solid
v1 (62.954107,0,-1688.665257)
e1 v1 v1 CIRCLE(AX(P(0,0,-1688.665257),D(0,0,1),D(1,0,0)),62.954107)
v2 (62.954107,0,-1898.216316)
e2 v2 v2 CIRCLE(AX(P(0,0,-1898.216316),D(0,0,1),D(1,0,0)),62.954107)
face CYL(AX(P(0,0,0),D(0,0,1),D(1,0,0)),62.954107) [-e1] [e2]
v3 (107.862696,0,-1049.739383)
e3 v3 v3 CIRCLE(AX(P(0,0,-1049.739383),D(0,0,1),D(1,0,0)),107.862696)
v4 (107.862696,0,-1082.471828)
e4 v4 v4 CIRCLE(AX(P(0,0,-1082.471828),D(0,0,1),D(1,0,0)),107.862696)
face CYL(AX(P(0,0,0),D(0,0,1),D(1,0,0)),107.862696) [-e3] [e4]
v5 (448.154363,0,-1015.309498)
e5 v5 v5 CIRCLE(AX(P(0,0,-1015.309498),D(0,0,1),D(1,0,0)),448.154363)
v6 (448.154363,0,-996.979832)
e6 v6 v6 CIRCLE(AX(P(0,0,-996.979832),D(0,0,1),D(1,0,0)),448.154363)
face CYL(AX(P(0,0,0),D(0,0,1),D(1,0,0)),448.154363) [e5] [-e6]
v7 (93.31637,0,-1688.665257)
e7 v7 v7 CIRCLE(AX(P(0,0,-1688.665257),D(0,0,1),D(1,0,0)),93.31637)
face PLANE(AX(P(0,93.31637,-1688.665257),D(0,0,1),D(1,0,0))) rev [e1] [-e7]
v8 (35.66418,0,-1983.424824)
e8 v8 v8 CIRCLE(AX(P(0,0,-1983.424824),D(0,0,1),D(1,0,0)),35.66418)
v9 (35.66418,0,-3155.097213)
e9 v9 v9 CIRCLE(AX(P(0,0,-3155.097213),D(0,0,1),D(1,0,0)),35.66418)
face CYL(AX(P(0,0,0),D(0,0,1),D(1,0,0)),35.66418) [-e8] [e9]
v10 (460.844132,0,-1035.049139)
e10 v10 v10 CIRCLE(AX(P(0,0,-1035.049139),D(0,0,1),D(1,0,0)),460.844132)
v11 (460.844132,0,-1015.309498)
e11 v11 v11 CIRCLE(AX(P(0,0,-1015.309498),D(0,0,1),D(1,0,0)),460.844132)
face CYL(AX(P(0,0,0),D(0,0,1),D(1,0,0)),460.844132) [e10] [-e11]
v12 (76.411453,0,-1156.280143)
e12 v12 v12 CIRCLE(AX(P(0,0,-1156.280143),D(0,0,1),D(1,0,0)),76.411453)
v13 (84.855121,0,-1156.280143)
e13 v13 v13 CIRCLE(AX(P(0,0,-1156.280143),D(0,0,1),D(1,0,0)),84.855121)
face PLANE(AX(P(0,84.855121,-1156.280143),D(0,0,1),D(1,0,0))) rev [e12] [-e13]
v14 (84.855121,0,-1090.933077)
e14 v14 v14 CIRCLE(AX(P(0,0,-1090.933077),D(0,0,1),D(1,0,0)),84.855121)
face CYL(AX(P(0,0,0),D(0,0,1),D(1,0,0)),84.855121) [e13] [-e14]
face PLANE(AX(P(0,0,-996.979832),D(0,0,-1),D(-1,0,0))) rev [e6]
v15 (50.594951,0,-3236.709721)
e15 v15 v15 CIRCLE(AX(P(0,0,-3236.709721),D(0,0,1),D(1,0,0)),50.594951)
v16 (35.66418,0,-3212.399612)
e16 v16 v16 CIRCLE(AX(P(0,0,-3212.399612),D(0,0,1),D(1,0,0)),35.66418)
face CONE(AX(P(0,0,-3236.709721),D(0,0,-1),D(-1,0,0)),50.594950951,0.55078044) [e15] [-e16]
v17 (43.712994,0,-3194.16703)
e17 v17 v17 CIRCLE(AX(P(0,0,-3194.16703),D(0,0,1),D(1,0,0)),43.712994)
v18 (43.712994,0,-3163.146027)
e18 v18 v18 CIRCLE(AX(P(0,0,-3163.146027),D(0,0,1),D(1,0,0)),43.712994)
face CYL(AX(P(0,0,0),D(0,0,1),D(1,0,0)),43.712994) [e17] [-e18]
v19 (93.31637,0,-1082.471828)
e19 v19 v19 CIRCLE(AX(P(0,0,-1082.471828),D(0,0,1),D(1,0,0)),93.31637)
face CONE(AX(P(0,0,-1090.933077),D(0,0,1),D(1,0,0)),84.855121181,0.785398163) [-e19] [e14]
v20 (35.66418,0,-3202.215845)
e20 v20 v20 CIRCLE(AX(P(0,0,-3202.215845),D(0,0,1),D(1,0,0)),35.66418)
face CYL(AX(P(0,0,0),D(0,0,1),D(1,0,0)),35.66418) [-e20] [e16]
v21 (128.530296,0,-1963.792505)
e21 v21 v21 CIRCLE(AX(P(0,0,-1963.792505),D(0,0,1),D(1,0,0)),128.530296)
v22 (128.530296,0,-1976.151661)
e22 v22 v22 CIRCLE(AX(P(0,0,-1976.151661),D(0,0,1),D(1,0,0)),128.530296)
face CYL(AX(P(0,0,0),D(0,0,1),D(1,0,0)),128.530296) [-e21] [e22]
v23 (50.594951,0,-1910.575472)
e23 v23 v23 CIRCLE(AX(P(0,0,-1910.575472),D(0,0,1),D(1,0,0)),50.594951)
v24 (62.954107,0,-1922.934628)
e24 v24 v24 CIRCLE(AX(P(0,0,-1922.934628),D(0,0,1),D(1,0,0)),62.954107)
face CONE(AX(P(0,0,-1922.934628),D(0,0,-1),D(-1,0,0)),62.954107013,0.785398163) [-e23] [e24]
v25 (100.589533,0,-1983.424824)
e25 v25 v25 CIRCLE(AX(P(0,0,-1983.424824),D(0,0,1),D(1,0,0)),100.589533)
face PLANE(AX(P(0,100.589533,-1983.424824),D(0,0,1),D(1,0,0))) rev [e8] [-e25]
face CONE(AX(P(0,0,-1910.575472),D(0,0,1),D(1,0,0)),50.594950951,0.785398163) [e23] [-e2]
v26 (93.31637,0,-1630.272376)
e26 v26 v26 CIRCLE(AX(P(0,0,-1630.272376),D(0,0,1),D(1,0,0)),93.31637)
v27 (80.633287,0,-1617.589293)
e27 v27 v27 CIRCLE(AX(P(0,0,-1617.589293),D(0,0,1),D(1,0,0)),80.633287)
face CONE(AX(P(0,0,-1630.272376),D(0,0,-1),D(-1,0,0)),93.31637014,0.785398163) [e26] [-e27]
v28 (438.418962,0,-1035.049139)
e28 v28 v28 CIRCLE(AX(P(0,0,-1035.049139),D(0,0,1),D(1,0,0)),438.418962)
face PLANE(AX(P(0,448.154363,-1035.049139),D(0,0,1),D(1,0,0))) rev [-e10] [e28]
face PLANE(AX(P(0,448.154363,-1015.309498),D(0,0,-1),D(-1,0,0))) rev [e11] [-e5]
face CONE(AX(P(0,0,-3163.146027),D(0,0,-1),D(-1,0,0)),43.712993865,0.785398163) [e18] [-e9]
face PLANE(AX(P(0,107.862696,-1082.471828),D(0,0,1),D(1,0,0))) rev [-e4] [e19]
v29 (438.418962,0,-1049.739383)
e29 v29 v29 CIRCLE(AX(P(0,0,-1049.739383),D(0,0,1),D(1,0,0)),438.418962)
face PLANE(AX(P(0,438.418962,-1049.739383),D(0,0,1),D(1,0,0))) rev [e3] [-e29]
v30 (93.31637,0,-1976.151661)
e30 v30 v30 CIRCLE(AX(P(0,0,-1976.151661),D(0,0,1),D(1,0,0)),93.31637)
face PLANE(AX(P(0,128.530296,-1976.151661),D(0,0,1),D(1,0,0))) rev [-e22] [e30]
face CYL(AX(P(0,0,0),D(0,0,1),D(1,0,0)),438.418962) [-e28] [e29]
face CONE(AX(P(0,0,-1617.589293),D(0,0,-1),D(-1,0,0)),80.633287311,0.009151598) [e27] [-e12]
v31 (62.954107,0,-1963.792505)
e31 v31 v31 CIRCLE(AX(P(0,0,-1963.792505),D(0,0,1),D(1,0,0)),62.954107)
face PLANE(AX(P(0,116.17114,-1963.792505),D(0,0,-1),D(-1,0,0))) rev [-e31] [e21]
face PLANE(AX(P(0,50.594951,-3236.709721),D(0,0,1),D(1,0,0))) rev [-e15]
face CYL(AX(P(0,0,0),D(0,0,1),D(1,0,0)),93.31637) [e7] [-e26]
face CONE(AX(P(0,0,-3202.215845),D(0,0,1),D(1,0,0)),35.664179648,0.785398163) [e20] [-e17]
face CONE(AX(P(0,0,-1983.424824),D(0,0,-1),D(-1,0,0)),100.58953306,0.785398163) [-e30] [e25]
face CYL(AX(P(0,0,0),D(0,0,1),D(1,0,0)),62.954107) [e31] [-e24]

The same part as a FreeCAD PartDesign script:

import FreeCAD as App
import Part
import Sketcher
from FreeCAD import Vector

doc = App.newDocument("Part")
params = doc.addObject("Spreadsheet::Sheet", "Params")
for row, (alias, value) in enumerate([
    ("revolution_angle", "360 deg"),
], start=1):
    params.set(f"A{row}", alias)
    params.set(f"B{row}", "=" + value)
    params.setAlias(f"B{row}", alias)

body = doc.addObject("PartDesign::Body", "Body")

sketch1 = doc.addObject("Sketcher::SketchObject", "Sketch")
body.addObject(sketch1)
sketch1.AttachmentSupport = (doc.YZ_Plane, [""])
sketch1.MapMode = "FlatFace"
sketch1.addGeometry([
    Part.LineSegment(Vector(448, -997, 0), Vector(0, -997, 0)),
    Part.LineSegment(Vector(0, -997, 0), Vector(0, -3237, 0)),
    Part.LineSegment(Vector(0, -3237, 0), Vector(51, -3237, 0)),
    Part.LineSegment(Vector(51, -3237, 0), Vector(36, -3212, 0)),
    Part.LineSegment(Vector(36, -3212, 0), Vector(36, -3202, 0)),
    Part.LineSegment(Vector(36, -3202, 0), Vector(44, -3194, 0)),
    Part.LineSegment(Vector(44, -3194, 0), Vector(44, -3163, 0)),
    Part.LineSegment(Vector(44, -3163, 0), Vector(36, -3155, 0)),
    Part.LineSegment(Vector(36, -3155, 0), Vector(36, -1983, 0)),
    Part.LineSegment(Vector(36, -1983, 0), Vector(101, -1983, 0)),
    Part.LineSegment(Vector(101, -1983, 0), Vector(93, -1976, 0)),
    Part.LineSegment(Vector(93, -1976, 0), Vector(129, -1976, 0)),
    Part.LineSegment(Vector(129, -1976, 0), Vector(129, -1964, 0)),
    Part.LineSegment(Vector(129, -1964, 0), Vector(63, -1964, 0)),
    Part.LineSegment(Vector(63, -1964, 0), Vector(63, -1923, 0)),
    Part.LineSegment(Vector(63, -1923, 0), Vector(51, -1911, 0)),
    Part.LineSegment(Vector(51, -1911, 0), Vector(63, -1898, 0)),
    Part.LineSegment(Vector(63, -1898, 0), Vector(63, -1689, 0)),
    Part.LineSegment(Vector(63, -1689, 0), Vector(93, -1689, 0)),
    Part.LineSegment(Vector(93, -1689, 0), Vector(93, -1630, 0)),
    Part.LineSegment(Vector(93, -1630, 0), Vector(81, -1618, 0)),
    Part.LineSegment(Vector(81, -1618, 0), Vector(76, -1156, 0)),
    Part.LineSegment(Vector(76, -1156, 0), Vector(85, -1156, 0)),
    Part.LineSegment(Vector(85, -1156, 0), Vector(85, -1091, 0)),
    Part.LineSegment(Vector(85, -1091, 0), Vector(93, -1082, 0)),
    Part.LineSegment(Vector(93, -1082, 0), Vector(108, -1082, 0)),
    Part.LineSegment(Vector(108, -1082, 0), Vector(108, -1050, 0)),
    Part.LineSegment(Vector(108, -1050, 0), Vector(438, -1050, 0)),
    Part.LineSegment(Vector(438, -1050, 0), Vector(438, -1035, 0)),
    Part.LineSegment(Vector(438, -1035, 0), Vector(461, -1035, 0)),
    Part.LineSegment(Vector(461, -1035, 0), Vector(461, -1015, 0)),
    Part.LineSegment(Vector(461, -1015, 0), Vector(448, -1015, 0)),
    Part.LineSegment(Vector(448, -1015, 0), Vector(448, -997, 0)),
], False)
sketch1.addConstraint([
    Sketcher.Constraint("Coincident", 0, 2, 1, 1),
    Sketcher.Constraint("Coincident", 1, 2, 2, 1),
    Sketcher.Constraint("Coincident", 2, 2, 3, 1),
    Sketcher.Constraint("Coincident", 3, 2, 4, 1),
    Sketcher.Constraint("Coincident", 4, 2, 5, 1),
    Sketcher.Constraint("Coincident", 5, 2, 6, 1),
    Sketcher.Constraint("Coincident", 6, 2, 7, 1),
    Sketcher.Constraint("Coincident", 7, 2, 8, 1),
    Sketcher.Constraint("Coincident", 8, 2, 9, 1),
    Sketcher.Constraint("Coincident", 9, 2, 10, 1),
    Sketcher.Constraint("Coincident", 10, 2, 11, 1),
    Sketcher.Constraint("Coincident", 11, 2, 12, 1),
    Sketcher.Constraint("Coincident", 12, 2, 13, 1),
    Sketcher.Constraint("Coincident", 13, 2, 14, 1),
    Sketcher.Constraint("Coincident", 14, 2, 15, 1),
    Sketcher.Constraint("Coincident", 15, 2, 16, 1),
    Sketcher.Constraint("Coincident", 16, 2, 17, 1),
    Sketcher.Constraint("Coincident", 17, 2, 18, 1),
    Sketcher.Constraint("Coincident", 18, 2, 19, 1),
    Sketcher.Constraint("Coincident", 19, 2, 20, 1),
    Sketcher.Constraint("Coincident", 20, 2, 21, 1),
    Sketcher.Constraint("Coincident", 21, 2, 22, 1),
    Sketcher.Constraint("Coincident", 22, 2, 23, 1),
    Sketcher.Constraint("Coincident", 23, 2, 24, 1),
    Sketcher.Constraint("Coincident", 24, 2, 25, 1),
    Sketcher.Constraint("Coincident", 25, 2, 26, 1),
    Sketcher.Constraint("Coincident", 26, 2, 27, 1),
    Sketcher.Constraint("Coincident", 27, 2, 28, 1),
    Sketcher.Constraint("Coincident", 28, 2, 29, 1),
    Sketcher.Constraint("Coincident", 29, 2, 30, 1),
    Sketcher.Constraint("Coincident", 30, 2, 31, 1),
    Sketcher.Constraint("Coincident", 31, 2, 32, 1),
    Sketcher.Constraint("Coincident", 32, 2, 0, 1),
    Sketcher.Constraint("Horizontal", 0),
    Sketcher.Constraint("Vertical", 1),
    Sketcher.Constraint("Horizontal", 2),
    Sketcher.Constraint("Vertical", 4),
    Sketcher.Constraint("Vertical", 6),
    Sketcher.Constraint("Vertical", 8),
    Sketcher.Constraint("Horizontal", 9),
    Sketcher.Constraint("Horizontal", 11),
    Sketcher.Constraint("Vertical", 12),
    Sketcher.Constraint("Horizontal", 13),
    Sketcher.Constraint("Vertical", 14),
    Sketcher.Constraint("Vertical", 17),
    Sketcher.Constraint("Horizontal", 18),
    Sketcher.Constraint("Vertical", 19),
    Sketcher.Constraint("Horizontal", 22),
    Sketcher.Constraint("Vertical", 23),
    Sketcher.Constraint("Horizontal", 25),
    Sketcher.Constraint("Vertical", 26),
    Sketcher.Constraint("Horizontal", 27),
    Sketcher.Constraint("Vertical", 28),
    Sketcher.Constraint("Horizontal", 29),
    Sketcher.Constraint("Vertical", 30),
    Sketcher.Constraint("Horizontal", 31),
    Sketcher.Constraint("Vertical", 32),
    Sketcher.Constraint("PointOnObject", 0, 2, -2),
    Sketcher.Constraint("Perpendicular", 5, 7),
    Sketcher.Constraint("Parallel", 7, 10),
    Sketcher.Constraint("Parallel", 10, 15),
    Sketcher.Constraint("Perpendicular", 15, 16),
    Sketcher.Constraint("Perpendicular", 16, 20),
    Sketcher.Constraint("Perpendicular", 20, 24),
    Sketcher.Constraint("Vertical", 4, 2, 7, 2),
    Sketcher.Constraint("Vertical", 2, 2, 15, 2),
    Sketcher.Constraint("Vertical", 14, 2, 16, 2),
    Sketcher.Constraint("Vertical", 10, 2, 18, 2),
    Sketcher.Constraint("Vertical", 19, 2, 24, 2),
    Sketcher.Constraint("Equal", 5, 7),
    Sketcher.Constraint("DistanceX", 2, 1, 2, 2, 50.594951),
    Sketcher.Constraint("DistanceX", 13, 2, 13, 1, 65.576189),
    Sketcher.Constraint("DistanceX", 29, 1, 29, 2, 22.425169),
    Sketcher.Constraint("DistanceX", 31, 2, 31, 1, 12.689769),
    Sketcher.Constraint("DistanceY", 1, 2, 1, 1, 2239.729889),
    Sketcher.Constraint("DistanceY", 8, 1, 8, 2, 1171.672389),
    Sketcher.Constraint("DistanceY", 17, 1, 17, 2, 209.551059),
    Sketcher.Constraint("DistanceY", 19, 1, 19, 2, 58.392881),
    Sketcher.Constraint("DistanceY", 30, 1, 30, 2, 19.739641),
    Sketcher.Constraint("DistanceY", 30, 2, -1, 1, 1015.309498),
    Sketcher.Constraint("DistanceY", 5, 2, 0, 2, 2197.187198),
    Sketcher.Constraint("DistanceY", 3, 2, 7, 2, 57.302399),
    Sketcher.Constraint("DistanceY", 19, 2, 23, 2, 539.339299),
    Sketcher.Constraint("Distance", 21, 461.328469),
    Sketcher.Constraint("DistanceX", 0, 2, 0, 1, 448.154363),
    Sketcher.Constraint("DistanceX", 9, 1, 9, 2, 64.925353),
    Sketcher.Constraint("DistanceX", 11, 1, 11, 2, 35.213926),
    Sketcher.Constraint("DistanceX", 22, 1, 22, 2, 8.443668),
    Sketcher.Constraint("DistanceX", 25, 1, 25, 2, 14.546326),
    Sketcher.Constraint("DistanceX", 27, 1, 27, 2, 330.556266),
    Sketcher.Constraint("DistanceY", 4, 1, 4, 2, 10.183767),
    Sketcher.Constraint("DistanceY", 6, 1, 6, 2, 31.021004),
    Sketcher.Constraint("DistanceY", 12, 1, 12, 2, 12.359156),
    Sketcher.Constraint("DistanceY", 14, 1, 14, 2, 40.857877),
    Sketcher.Constraint("DistanceY", 23, 1, 23, 2, 65.347066),
    Sketcher.Constraint("DistanceY", 26, 1, 26, 2, 32.732445),
    Sketcher.Constraint("DistanceY", 28, 1, 28, 2, 14.690244),
    Sketcher.Constraint("DistanceY", 32, 1, 32, 2, 18.329667),
    Sketcher.Constraint("DistanceX", -1, 1, 3, 2, 35.66418),
])
revolution = doc.addObject("PartDesign::Revolution", "Revolution")
body.addObject(revolution)
revolution.Profile = sketch1
revolution.ReferenceAxis = (sketch1, ["V_Axis"])
revolution.setExpression("Angle", "Params.revolution_angle")

doc.recompute()
